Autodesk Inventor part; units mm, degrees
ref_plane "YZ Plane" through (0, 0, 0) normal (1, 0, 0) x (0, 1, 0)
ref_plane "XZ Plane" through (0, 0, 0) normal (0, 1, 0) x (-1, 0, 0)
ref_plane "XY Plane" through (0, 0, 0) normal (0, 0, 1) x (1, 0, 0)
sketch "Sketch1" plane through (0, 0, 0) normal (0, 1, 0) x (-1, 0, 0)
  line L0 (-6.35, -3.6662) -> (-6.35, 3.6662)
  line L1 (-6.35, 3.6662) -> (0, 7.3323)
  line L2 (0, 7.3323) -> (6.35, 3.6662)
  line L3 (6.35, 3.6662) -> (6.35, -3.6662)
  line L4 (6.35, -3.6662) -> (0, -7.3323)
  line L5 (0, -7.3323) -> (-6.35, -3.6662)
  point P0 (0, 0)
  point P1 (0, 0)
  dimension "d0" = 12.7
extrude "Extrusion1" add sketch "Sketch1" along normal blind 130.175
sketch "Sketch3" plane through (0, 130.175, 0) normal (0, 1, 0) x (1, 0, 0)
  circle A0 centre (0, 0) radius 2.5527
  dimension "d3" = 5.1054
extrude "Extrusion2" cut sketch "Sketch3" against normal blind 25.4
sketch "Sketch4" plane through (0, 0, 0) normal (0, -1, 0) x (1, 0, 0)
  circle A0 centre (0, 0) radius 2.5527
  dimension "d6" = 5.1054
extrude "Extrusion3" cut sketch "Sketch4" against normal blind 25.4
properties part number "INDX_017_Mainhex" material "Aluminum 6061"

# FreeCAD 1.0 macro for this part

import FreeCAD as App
import Part
import Sketcher
from FreeCAD import Vector
Q = App.Units.Quantity


def add_polygon(sketch, points):
    """Adds a closed chain of lines whose ends are joined by coincident constraints."""
    first, n = sketch.GeometryCount, len(points)
    for a, b in zip(points, points[1:] + points[:1]):
        sketch.addGeometry(Part.LineSegment(App.Vector(*a, 0), App.Vector(*b, 0)), False)
    for i in range(n):
        sketch.addConstraint(Sketcher.Constraint("Coincident", first + i, 2, first + (i + 1) % n, 1))

doc = App.newDocument("Part")
body = doc.addObject("PartDesign::Body", "Body")

sketch1 = body.newObject("Sketcher::SketchObject", "Sketch")
sketch1.AttachmentSupport = (doc.getObject("XZ_Plane"), [""])
sketch1.MapMode = "FlatFace"
add_polygon(sketch1, [(6, 4), (6, -4), (0, -7), (-6, -4), (-6, 4), (0, 7)])
sketch1.addConstraint([
    Sketcher.Constraint("Vertical", 0),
    Sketcher.Constraint("Vertical", 3),
    Sketcher.Constraint("Symmetric", 0, 2, 3, 2, -1, 1),
    Sketcher.Constraint("Symmetric", 1, 2, 4, 2, -1, 1),
    Sketcher.Constraint("PointOnObject", 1, 2, -2),
    Sketcher.Constraint("Parallel", 2, 5),
    Sketcher.Constraint("Horizontal", 0, 2, 2, 2),
    Sketcher.Constraint("DistanceX", 2, 2, 0, 2, Q("0.5 in")),
    Sketcher.Constraint("Angle", 1, Q("-150.0005 deg")),
    Sketcher.Constraint("DistanceY", 1, 2, 3, 2, Q("0.433 in")),
])
pad1 = body.newObject("PartDesign::Pad", "Pad")
pad1.Profile = sketch1
pad1.Length = Q("5.125 in")
pad1.Reversed = True

sketch2 = body.newObject("Sketcher::SketchObject", "Sketch001")
sketch2.AttachmentSupport = (doc.getObject("XZ_Plane"), [""])
sketch2.MapMode = "FlatFace"
sketch2.AttachmentOffset = App.Placement(Vector(0, 0, -5.125 * 25.4), App.Rotation())
sketch2.addGeometry(Part.Circle(Vector(0, 0, 0), Vector(0, 0, 1), 2.6), False)
sketch2.addConstraint([
    Sketcher.Constraint("Coincident", 0, 3, -1, 1),
    Sketcher.Constraint("Diameter", 0, Q("0.201 in")),
])
pocket1 = body.newObject("PartDesign::Pocket", "Pocket")
pocket1.Profile = sketch2
pocket1.Length = Q("1 in")
pocket1.Reversed = True

sketch3 = body.newObject("Sketcher::SketchObject", "Sketch002")
sketch3.AttachmentSupport = (doc.getObject("XZ_Plane"), [""])
sketch3.MapMode = "FlatFace"
sketch3.addGeometry(Part.Circle(Vector(0, 0, 0), Vector(0, 0, 1), 2.6), False)
sketch3.addConstraint([
    Sketcher.Constraint("Coincident", 0, 3, -1, 1),
    Sketcher.Constraint("Diameter", 0, Q("0.201 in")),
])
pocket2 = body.newObject("PartDesign::Pocket", "Pocket001")
pocket2.Profile = sketch3
pocket2.Length = Q("1 in")

doc.recompute()
